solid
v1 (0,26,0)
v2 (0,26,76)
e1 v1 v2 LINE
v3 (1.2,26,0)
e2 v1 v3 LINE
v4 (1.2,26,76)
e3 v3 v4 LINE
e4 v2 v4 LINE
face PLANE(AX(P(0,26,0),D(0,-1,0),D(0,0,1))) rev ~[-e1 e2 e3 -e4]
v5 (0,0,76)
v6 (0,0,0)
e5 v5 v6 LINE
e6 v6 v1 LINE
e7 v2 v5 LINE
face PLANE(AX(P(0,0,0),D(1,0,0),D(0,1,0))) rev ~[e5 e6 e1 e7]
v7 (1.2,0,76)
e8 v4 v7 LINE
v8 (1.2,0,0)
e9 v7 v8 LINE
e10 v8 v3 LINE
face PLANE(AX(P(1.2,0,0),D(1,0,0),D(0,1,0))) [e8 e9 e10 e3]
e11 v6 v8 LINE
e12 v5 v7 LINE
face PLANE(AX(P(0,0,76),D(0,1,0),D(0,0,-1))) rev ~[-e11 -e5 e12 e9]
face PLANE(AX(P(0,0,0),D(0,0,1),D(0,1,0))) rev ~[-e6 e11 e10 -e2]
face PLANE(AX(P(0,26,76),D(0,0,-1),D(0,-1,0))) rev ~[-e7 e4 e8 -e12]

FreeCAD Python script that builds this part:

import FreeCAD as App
import Part
import Sketcher
Q = App.Units.Quantity

doc = App.newDocument("Part")
params = doc.addObject("Spreadsheet::Sheet", "Params")
for row, (alias, value) in enumerate([
    ("sketch1_width", "26 mm"),
    ("sketch1_height", "76 mm"),
    ("pad1_length", "1.2 mm"),
], start=1):
    params.set(f"A{row}", alias)
    params.set(f"B{row}", "=" + value)
    params.setAlias(f"B{row}", alias)

body = doc.addObject("PartDesign::Body", "Body")

# Sketch on YZ plane
sketch1 = body.newObject("Sketcher::SketchObject", "Sketch")
sketch1.AttachmentSupport = (doc.getObject("YZ_Plane"), [""])
sketch1.MapMode = "FlatFace"
sketch1.addGeometry(Part.LineSegment(App.Vector(0, 76, 0), App.Vector(0, 0, 0)), False)
sketch1.addGeometry(Part.LineSegment(App.Vector(0, 0, 0), App.Vector(26, 0, 0)), False)
sketch1.addGeometry(Part.LineSegment(App.Vector(26, 0, 0), App.Vector(26, 76, 0)), False)
sketch1.addGeometry(Part.LineSegment(App.Vector(26, 76, 0), App.Vector(0, 76, 0)), False)
sketch1.addConstraint(Sketcher.Constraint("Coincident", 0, 2, 1, 1))
sketch1.addConstraint(Sketcher.Constraint("Coincident", 1, 2, 2, 1))
sketch1.addConstraint(Sketcher.Constraint("Coincident", 2, 2, 3, 1))
sketch1.addConstraint(Sketcher.Constraint("Coincident", 3, 2, 0, 1))
sketch1.addConstraint(Sketcher.Constraint("Vertical", 0))
sketch1.addConstraint(Sketcher.Constraint("Horizontal", 1))
sketch1.addConstraint(Sketcher.Constraint("Vertical", 2))
sketch1.addConstraint(Sketcher.Constraint("Horizontal", 3))
sketch1.addConstraint(Sketcher.Constraint("Coincident", 0, 2, -1, 1))
sketch1.addConstraint(Sketcher.Constraint("DistanceX", 1, 1, 1, 2, Q("26 mm")))
sketch1.addConstraint(Sketcher.Constraint("DistanceY", 0, 2, 0, 1, Q("76 mm")))
sketch1.setExpression("Constraints[9]", "Params.sketch1_width")
sketch1.setExpression("Constraints[10]", "Params.sketch1_height")
pad1 = body.newObject("PartDesign::Pad", "Pad")
pad1.Profile = sketch1
pad1.setExpression("Length", "Params.pad1_length")

doc.recompute()
